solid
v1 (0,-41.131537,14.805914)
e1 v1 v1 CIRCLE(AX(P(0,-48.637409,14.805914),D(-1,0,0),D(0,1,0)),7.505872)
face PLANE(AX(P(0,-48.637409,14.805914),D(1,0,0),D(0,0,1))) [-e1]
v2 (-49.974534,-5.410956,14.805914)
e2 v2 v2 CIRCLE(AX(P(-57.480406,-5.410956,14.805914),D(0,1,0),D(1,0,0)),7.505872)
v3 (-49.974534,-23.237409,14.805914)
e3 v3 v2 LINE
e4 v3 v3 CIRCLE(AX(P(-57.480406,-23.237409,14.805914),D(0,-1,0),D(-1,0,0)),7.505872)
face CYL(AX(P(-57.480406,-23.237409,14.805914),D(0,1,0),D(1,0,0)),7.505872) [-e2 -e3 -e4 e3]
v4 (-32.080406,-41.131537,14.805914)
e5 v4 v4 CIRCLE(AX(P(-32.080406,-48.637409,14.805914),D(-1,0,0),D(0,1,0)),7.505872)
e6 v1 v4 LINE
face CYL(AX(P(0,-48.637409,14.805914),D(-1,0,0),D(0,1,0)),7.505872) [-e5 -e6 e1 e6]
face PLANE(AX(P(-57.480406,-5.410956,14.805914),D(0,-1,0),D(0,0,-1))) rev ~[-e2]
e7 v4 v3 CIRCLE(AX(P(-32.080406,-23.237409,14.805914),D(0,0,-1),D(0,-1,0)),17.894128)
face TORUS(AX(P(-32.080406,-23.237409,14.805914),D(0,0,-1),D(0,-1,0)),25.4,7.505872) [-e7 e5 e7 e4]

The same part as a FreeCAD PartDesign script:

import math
import FreeCAD as App
import Part
import Sketcher
from FreeCAD import Vector
Q = App.Units.Quantity

doc = App.newDocument("Part")
body = doc.addObject("PartDesign::Body", "Body")

# Sketch on YZ plane
sketch1 = body.newObject("Sketcher::SketchObject", "Sketch")
sketch1.AttachmentSupport = (doc.getObject("YZ_Plane"), [""])
sketch1.MapMode = "FlatFace"
sketch1.addGeometry(Part.Circle(Vector(-49, 15, 0), Vector(0, 0, 1), 8), False)
sketch1.addConstraint([
    Sketcher.Constraint("Diameter", 0, 15.011744),
    Sketcher.Constraint("DistanceX", 0, 3, -1, 1, 48.637409),
    Sketcher.Constraint("DistanceY", -1, 1, 0, 3, 14.805914),
])

# Sketch on XY plane
sketch2 = body.newObject("Sketcher::SketchObject", "Sketch001")
sketch2.AttachmentSupport = (doc.getObject("XY_Plane"), [""])
sketch2.MapMode = "FlatFace"
sketch2.AttachmentOffset = App.Placement(Vector(0, 0, 14.805914), App.Rotation())
sketch2.addGeometry([
    Part.LineSegment(Vector(0, -49, 0), Vector(-32, -49, 0)),
    Part.ArcOfCircle(Part.Circle(Vector(-32, -23, 0), Vector(0, 0, 1), 25), math.radians(180), math.radians(270)),
    Part.LineSegment(Vector(-57, -23, 0), Vector(-57, -5, 0)),
], False)
sketch2.addConstraint([
    Sketcher.Constraint("Tangent", 0, 2, 1, 2),
    Sketcher.Constraint("Tangent", 1, 1, 2, 1),
    Sketcher.Constraint("Horizontal", 0),
    Sketcher.Constraint("Vertical", 2),
    Sketcher.Constraint("PointOnObject", 0, 1, -2),
    Sketcher.Constraint("Radius", 1, Q("1 in")),
    Sketcher.Constraint("DistanceX", 0, 2, 0, 1, 32.080406),
    Sketcher.Constraint("DistanceY", 2, 1, 2, 2, 17.826453),
    Sketcher.Constraint("DistanceY", 1, 3, -1, 1, 23.237409),
])
doc.recompute()

additivepipe = body.newObject("PartDesign::AdditivePipe", "AdditivePipe")
additivepipe.Profile = sketch1
additivepipe.Spine = (sketch2, ["Edge1", "Edge2", "Edge3"])

doc.recompute()
